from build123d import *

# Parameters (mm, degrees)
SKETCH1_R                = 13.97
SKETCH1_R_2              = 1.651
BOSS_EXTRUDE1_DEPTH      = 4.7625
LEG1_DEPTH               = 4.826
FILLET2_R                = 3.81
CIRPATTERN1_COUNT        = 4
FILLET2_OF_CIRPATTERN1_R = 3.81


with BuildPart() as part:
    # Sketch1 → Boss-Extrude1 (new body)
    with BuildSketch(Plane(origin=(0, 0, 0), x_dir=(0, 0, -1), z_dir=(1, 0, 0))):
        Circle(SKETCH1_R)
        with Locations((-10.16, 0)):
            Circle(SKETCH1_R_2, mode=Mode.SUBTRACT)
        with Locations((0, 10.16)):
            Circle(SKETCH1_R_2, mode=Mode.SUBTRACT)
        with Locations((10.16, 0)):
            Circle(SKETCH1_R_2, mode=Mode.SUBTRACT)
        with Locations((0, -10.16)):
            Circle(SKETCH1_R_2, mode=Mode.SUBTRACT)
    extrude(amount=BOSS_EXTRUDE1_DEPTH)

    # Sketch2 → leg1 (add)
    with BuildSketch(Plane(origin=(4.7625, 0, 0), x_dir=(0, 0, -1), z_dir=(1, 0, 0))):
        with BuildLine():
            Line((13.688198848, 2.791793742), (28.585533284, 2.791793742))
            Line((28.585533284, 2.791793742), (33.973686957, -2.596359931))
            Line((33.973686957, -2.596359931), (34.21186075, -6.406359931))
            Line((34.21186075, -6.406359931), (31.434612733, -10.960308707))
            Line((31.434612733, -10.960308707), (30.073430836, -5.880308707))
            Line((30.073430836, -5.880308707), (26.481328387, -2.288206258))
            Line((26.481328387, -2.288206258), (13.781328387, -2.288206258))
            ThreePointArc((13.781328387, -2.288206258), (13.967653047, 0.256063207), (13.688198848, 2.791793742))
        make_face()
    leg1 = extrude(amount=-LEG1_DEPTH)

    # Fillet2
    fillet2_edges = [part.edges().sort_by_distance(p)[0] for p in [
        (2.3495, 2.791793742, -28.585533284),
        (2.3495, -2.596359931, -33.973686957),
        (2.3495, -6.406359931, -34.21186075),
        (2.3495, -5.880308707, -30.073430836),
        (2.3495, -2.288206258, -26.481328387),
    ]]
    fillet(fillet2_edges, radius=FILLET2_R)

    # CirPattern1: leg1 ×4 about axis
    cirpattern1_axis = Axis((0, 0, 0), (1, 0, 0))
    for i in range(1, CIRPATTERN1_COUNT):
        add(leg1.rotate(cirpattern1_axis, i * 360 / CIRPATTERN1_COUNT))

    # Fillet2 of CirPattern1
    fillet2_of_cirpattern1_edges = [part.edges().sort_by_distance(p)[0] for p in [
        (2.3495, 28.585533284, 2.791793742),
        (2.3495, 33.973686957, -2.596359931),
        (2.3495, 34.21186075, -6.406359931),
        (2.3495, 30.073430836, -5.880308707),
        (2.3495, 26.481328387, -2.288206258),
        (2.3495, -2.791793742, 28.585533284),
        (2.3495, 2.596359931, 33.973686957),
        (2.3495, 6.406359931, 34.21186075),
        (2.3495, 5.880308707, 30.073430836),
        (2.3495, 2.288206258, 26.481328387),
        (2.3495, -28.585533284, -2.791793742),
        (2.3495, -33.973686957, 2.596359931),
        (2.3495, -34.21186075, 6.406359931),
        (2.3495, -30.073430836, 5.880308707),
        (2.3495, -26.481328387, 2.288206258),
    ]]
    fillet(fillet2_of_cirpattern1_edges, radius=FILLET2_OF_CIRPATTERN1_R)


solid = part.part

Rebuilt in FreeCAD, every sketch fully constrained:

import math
import FreeCAD as App
import Part
import Sketcher
from FreeCAD import Vector
Q = App.Units.Quantity


def edges_at(feature, points):
    """Names of the edges that pass closest to the given points."""
    edges = feature.Shape.Edges
    near = lambda p: min(range(len(edges)), key=lambda i: edges[i].distToShape(Part.Vertex(*p))[0])
    return sorted({f"Edge{near(p) + 1}" for p in points})

doc = App.newDocument("Part")
params = doc.addObject("Spreadsheet::Sheet", "Params")
for row, (alias, value) in enumerate([
    ("sketch1_diameter", "1.1 in"),
    ("sketch1_diameter2", "0.13 in"),
    ("pad1_length", "0.1875 in"),
    ("sketch2_radius", "0.55 in"),
    ("sketch2_height", "0.5 in"),
    ("sketch2_length", "0.2 in"),
    ("sketch2_length2", "0.3 in"),
    ("sketch2_length3", "0.21 in"),
    ("pad2_length", "0.19 in"),
    ("fillet_radius", "0.15 in"),
    ("fillet2_radius", "0.15 in"),
], start=1):
    params.set(f"A{row}", alias)
    params.set(f"B{row}", "=" + value)
    params.setAlias(f"B{row}", alias)

body = doc.addObject("PartDesign::Body", "Body")

sketch1 = doc.addObject("Sketcher::SketchObject", "Sketch")
body.addObject(sketch1)
sketch1.AttachmentSupport = (doc.YZ_Plane, [""])
sketch1.MapMode = "FlatFace"
sketch1.addGeometry([
    Part.Circle(Vector(0, 0, 0), Vector(0, 0, 1), 14),
    Part.Circle(Vector(-10.2, 0, 0), Vector(0, 0, 1), 1.7),
    Part.Circle(Vector(0, 10.2, 0), Vector(0, 0, 1), 1.7),
    Part.Circle(Vector(0, -10.2, 0), Vector(0, 0, 1), 1.7),
    Part.Circle(Vector(10.2, 0, 0), Vector(0, 0, 1), 1.7),
], False)
sketch1.addConstraint([
    Sketcher.Constraint("Coincident", 0, 3, -1, 1),
    Sketcher.Constraint("Equal", 1, 2),
    Sketcher.Constraint("Equal", 2, 3),
    Sketcher.Constraint("Equal", 3, 4),
    Sketcher.Constraint("Symmetric", 2, 3, 3, 3, -1, 1),
    Sketcher.Constraint("Symmetric", 1, 3, 4, 3, -1, 1),
    Sketcher.Constraint("PointOnObject", 1, 3, -1),
    Sketcher.Constraint("PointOnObject", 2, 3, -2),
    Sketcher.Constraint("Diameter", 0, Q("1.1 in")),
    Sketcher.Constraint("Diameter", 1, Q("0.13 in")),
    Sketcher.Constraint("DistanceX", 1, 3, -1, 1, Q("0.4 in")),
    Sketcher.Constraint("DistanceY", -1, 1, 2, 3, Q("0.4 in")),
])
sketch1.setExpression("Constraints[8]", "Params.sketch1_diameter")
sketch1.setExpression("Constraints[9]", "Params.sketch1_diameter2")
pad1 = doc.addObject("PartDesign::Pad", "Pad")
body.addObject(pad1)
pad1.Profile = sketch1
pad1.setExpression("Length", "Params.pad1_length")

sketch2 = doc.addObject("Sketcher::SketchObject", "Sketch001")
body.addObject(sketch2)
sketch2.AttachmentSupport = (doc.YZ_Plane, [""])
sketch2.MapMode = "FlatFace"
sketch2.AttachmentOffset = App.Placement(Vector(0, 0, 0.1875 * 25.4), App.Rotation())
sketch2.addGeometry([
    Part.LineSegment(Vector(2.8, -28.6, 0), Vector(2.8, -13.7, 0)),
    Part.ArcOfCircle(Part.Circle(Vector(0, 0, 0), Vector(0, 0, 1), 14), math.radians(-99), math.radians(-78)),
    Part.LineSegment(Vector(-2.3, -13.8, 0), Vector(-2.3, -26.5, 0)),
    Part.LineSegment(Vector(-2.3, -26.5, 0), Vector(-5.9, -30.1, 0)),
    Part.LineSegment(Vector(-5.9, -30.1, 0), Vector(-11, -31.4, 0)),
    Part.LineSegment(Vector(-11, -31.4, 0), Vector(-6.4, -34.2, 0)),
    Part.LineSegment(Vector(-6.4, -34.2, 0), Vector(-2.6, -34, 0)),
    Part.LineSegment(Vector(-2.6, -34, 0), Vector(2.8, -28.6, 0)),
], False)
sketch2.addConstraint([
    Sketcher.Constraint("Coincident", 0, 2, 1, 2),
    Sketcher.Constraint("Coincident", 1, 1, 2, 1),
    Sketcher.Constraint("Coincident", 2, 2, 3, 1),
    Sketcher.Constraint("Coincident", 3, 2, 4, 1),
    Sketcher.Constraint("Coincident", 4, 2, 5, 1),
    Sketcher.Constraint("Coincident", 5, 2, 6, 1),
    Sketcher.Constraint("Coincident", 6, 2, 7, 1),
    Sketcher.Constraint("Coincident", 7, 2, 0, 1),
    Sketcher.Constraint("Vertical", 0),
    Sketcher.Constraint("Vertical", 2),
    Sketcher.Constraint("Coincident", 1, 3, -1, 1),
    Sketcher.Constraint("Parallel", 3, 7),
    Sketcher.Constraint("Radius", 1, Q("0.55 in")),
    Sketcher.Constraint("DistanceY", 2, 2, 2, 1, Q("0.5 in")),
    Sketcher.Constraint("Angle", 3, Q("-135 deg")),
    Sketcher.Constraint("Angle", 4, Q("-165 deg")),
    Sketcher.Constraint("Distance", 3, Q("0.2 in")),
    Sketcher.Constraint("Distance", 7, Q("0.3 in")),
    Sketcher.Constraint("DistanceX", 1, 1, 0, 2, Q("0.2 in")),
    Sketcher.Constraint("DistanceX", 4, 2, 3, 2, Q("0.2 in")),
    Sketcher.Constraint("Distance", 5, Q("0.21 in")),
    Sketcher.Constraint("DistanceX", 5, 2, 6, 2, Q("0.15 in")),
    Sketcher.Constraint("DistanceY", 0, 2, -1, 1, 13.688199),
    Sketcher.Constraint("DistanceY", 0, 1, 0, 2, 14.897334),
])
sketch2.setExpression("Constraints[12]", "Params.sketch2_radius")
sketch2.setExpression("Constraints[13]", "Params.sketch2_height")
sketch2.setExpression("Constraints[16]", "Params.sketch2_length")
sketch2.setExpression("Constraints[17]", "Params.sketch2_length2")
sketch2.setExpression("Constraints[20]", "Params.sketch2_length3")
pad2 = doc.addObject("PartDesign::Pad", "Pad001")
body.addObject(pad2)
pad2.Profile = sketch2
pad2.setExpression("Length", "Params.pad2_length")
pad2.Reversed = True
doc.recompute()

fillet = doc.addObject("PartDesign::Fillet", "Fillet")
body.addObject(fillet)
fillet.Base = (pad2, edges_at(pad2, [
    (2.349, 2.792, -28.586),
    (2.349, -2.596, -33.974),
    (2.349, -6.406, -34.212),
    (2.349, -5.88, -30.073),
    (2.349, -2.288, -26.481),
]))
fillet.setExpression("Radius", "Params.fillet_radius")
doc.recompute()

polarpattern = doc.addObject("PartDesign::PolarPattern", "PolarPattern")
body.addObject(polarpattern)
polarpattern.Originals = [pad2]
polarpattern.Axis = (doc.X_Axis, [""])
polarpattern.Angle = 360
polarpattern.Occurrences = 4
body.Tip = polarpattern
doc.recompute()

fillet2 = doc.addObject("PartDesign::Fillet", "Fillet001")
body.addObject(fillet2)
fillet2.Base = (polarpattern, edges_at(polarpattern, [
    (2.349, 28.586, 2.792),
    (2.349, 33.974, -2.596),
    (2.349, 34.212, -6.406),
    (2.349, 30.073, -5.88),
    (2.349, 26.481, -2.288),
    (2.349, -2.792, 28.586),
    (2.349, 2.596, 33.974),
    (2.349, 6.406, 34.212),
    (2.349, 5.88, 30.073),
    (2.349, 2.288, 26.481),
    (2.349, -28.586, -2.792),
    (2.349, -33.974, 2.596),
    (2.349, -34.212, 6.406),
    (2.349, -30.073, 5.88),
    (2.349, -26.481, 2.288),
]))
fillet2.setExpression("Radius", "Params.fillet2_radius")

doc.recompute()
